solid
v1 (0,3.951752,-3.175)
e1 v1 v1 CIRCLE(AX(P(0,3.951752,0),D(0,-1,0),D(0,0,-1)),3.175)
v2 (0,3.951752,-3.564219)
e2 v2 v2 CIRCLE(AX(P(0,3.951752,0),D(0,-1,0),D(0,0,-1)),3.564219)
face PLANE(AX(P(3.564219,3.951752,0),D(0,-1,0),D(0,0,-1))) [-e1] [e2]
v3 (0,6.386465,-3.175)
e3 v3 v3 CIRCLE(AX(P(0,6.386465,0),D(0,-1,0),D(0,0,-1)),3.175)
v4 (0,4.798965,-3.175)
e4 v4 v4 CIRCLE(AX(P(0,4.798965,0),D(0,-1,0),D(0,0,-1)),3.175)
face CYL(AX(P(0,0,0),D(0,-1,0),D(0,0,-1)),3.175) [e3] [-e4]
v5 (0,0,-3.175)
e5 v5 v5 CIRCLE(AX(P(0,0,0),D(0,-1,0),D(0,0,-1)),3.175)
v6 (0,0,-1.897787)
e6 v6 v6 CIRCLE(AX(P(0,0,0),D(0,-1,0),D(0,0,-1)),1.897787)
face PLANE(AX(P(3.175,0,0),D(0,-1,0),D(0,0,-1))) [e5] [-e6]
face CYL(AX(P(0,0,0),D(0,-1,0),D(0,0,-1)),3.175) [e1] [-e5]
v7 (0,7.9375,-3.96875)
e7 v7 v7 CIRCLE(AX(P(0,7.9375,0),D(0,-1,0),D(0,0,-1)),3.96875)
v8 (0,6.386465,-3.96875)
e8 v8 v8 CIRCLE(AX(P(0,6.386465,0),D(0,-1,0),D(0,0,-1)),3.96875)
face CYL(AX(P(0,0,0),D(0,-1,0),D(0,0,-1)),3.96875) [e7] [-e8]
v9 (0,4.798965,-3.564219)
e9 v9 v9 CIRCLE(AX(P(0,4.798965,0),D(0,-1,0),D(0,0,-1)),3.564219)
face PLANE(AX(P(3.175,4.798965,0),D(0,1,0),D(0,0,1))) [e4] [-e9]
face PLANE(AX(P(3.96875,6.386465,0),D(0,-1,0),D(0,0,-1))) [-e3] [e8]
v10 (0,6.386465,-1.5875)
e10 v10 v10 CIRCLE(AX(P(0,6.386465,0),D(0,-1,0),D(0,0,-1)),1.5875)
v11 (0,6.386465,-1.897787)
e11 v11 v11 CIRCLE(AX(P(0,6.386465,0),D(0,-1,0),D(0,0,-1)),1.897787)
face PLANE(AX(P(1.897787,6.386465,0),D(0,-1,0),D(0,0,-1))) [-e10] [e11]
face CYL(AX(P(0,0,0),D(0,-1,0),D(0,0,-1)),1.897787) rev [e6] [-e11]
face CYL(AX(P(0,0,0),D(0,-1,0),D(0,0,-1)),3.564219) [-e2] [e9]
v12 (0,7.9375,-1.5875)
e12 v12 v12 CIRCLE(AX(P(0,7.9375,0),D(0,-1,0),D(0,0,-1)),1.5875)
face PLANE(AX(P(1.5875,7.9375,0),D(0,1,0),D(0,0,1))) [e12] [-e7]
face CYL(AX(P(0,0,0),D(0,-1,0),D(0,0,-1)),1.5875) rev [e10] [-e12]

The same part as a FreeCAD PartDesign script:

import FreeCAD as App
import Part
import Sketcher

V = App.Vector
Q = App.Units.Quantity

doc = App.newDocument("Part")
body = doc.addObject("PartDesign::Body", "Body")

# Sketch on XY plane
sketch1 = body.newObject("Sketcher::SketchObject", "Sketch")
sketch1.AttachmentSupport = (doc.getObject("XY_Plane"), [""])
sketch1.MapMode = "FlatFace"
sketch1.addGeometry([
    Part.LineSegment(V(3.96875, 7.9375, 0), V(1.5875, 7.9375, 0)),  # 0
    Part.LineSegment(V(1.5875, 7.9375, 0), V(1.5875, 6.386465, 0)),  # 1
    Part.LineSegment(V(1.5875, 6.386465, 0), V(1.897787, 6.386465, 0)),  # 2
    Part.LineSegment(V(1.897787, 6.386465, 0), V(1.897787, 0, 0)),  # 3
    Part.LineSegment(V(1.897787, 0, 0), V(3.175, 0, 0)),  # 4
    Part.LineSegment(V(3.175, 0, 0), V(3.175, 3.951752, 0)),  # 5
    Part.LineSegment(V(3.175, 3.951752, 0), V(3.564219, 3.951752, 0)),  # 6
    Part.LineSegment(V(3.564219, 3.951752, 0), V(3.564219, 4.798965, 0)),  # 7
    Part.LineSegment(V(3.564219, 4.798965, 0), V(3.175, 4.798965, 0)),  # 8
    Part.LineSegment(V(3.175, 4.798965, 0), V(3.175, 6.386465, 0)),  # 9
    Part.LineSegment(V(3.175, 6.386465, 0), V(3.96875, 6.386465, 0)),  # 10
    Part.LineSegment(V(3.96875, 6.386465, 0), V(3.96875, 7.9375, 0)),  # 11
], False)
sketch1.addConstraint([
    Sketcher.Constraint("Coincident", 0, 2, 1, 1),
    Sketcher.Constraint("Coincident", 1, 2, 2, 1),
    Sketcher.Constraint("Coincident", 2, 2, 3, 1),
    Sketcher.Constraint("Coincident", 3, 2, 4, 1),
    Sketcher.Constraint("Coincident", 4, 2, 5, 1),
    Sketcher.Constraint("Coincident", 5, 2, 6, 1),
    Sketcher.Constraint("Coincident", 6, 2, 7, 1),
    Sketcher.Constraint("Coincident", 7, 2, 8, 1),
    Sketcher.Constraint("Coincident", 8, 2, 9, 1),
    Sketcher.Constraint("Coincident", 9, 2, 10, 1),
    Sketcher.Constraint("Coincident", 10, 2, 11, 1),
    Sketcher.Constraint("Coincident", 11, 2, 0, 1),
    Sketcher.Constraint("Horizontal", 0),
    Sketcher.Constraint("Vertical", 1),
    Sketcher.Constraint("Horizontal", 2),
    Sketcher.Constraint("Vertical", 3),
    Sketcher.Constraint("Horizontal", 4),
    Sketcher.Constraint("Vertical", 5),
    Sketcher.Constraint("Horizontal", 6),
    Sketcher.Constraint("Vertical", 7),
    Sketcher.Constraint("Horizontal", 8),
    Sketcher.Constraint("Vertical", 9),
    Sketcher.Constraint("Horizontal", 10),
    Sketcher.Constraint("Vertical", 11),
    Sketcher.Constraint("PointOnObject", 3, 2, -1),
    Sketcher.Constraint("Horizontal", 2, 2, 9, 2),
    Sketcher.Constraint("Vertical", 5, 2, 8, 2),
    Sketcher.Constraint("DistanceX", 0, 2, 0, 1, Q("0.09375 in")),
    Sketcher.Constraint("DistanceX", 10, 1, 10, 2, Q("0.03125 in")),
    Sketcher.Constraint("DistanceY", 9, 1, 9, 2, Q("0.0625 in")),
    Sketcher.Constraint("DistanceX", -1, 1, 0, 2, Q("0.0625 in")),
    Sketcher.Constraint("DistanceY", -1, 1, 0, 2, Q("0.3125 in")),
    Sketcher.Constraint("DistanceX", 6, 1, 6, 2, 0.389219),
    Sketcher.Constraint("DistanceX", 2, 1, 2, 2, 0.310287),
    Sketcher.Constraint("DistanceY", 1, 2, 1, 1, 1.551035),
    Sketcher.Constraint("DistanceY", 5, 1, 5, 2, 3.951752),
])
revolution = body.newObject("PartDesign::Revolution", "Revolution")
revolution.Profile = sketch1
revolution.ReferenceAxis = (sketch1, ["V_Axis"])
revolution.Angle = 360

doc.recompute()
